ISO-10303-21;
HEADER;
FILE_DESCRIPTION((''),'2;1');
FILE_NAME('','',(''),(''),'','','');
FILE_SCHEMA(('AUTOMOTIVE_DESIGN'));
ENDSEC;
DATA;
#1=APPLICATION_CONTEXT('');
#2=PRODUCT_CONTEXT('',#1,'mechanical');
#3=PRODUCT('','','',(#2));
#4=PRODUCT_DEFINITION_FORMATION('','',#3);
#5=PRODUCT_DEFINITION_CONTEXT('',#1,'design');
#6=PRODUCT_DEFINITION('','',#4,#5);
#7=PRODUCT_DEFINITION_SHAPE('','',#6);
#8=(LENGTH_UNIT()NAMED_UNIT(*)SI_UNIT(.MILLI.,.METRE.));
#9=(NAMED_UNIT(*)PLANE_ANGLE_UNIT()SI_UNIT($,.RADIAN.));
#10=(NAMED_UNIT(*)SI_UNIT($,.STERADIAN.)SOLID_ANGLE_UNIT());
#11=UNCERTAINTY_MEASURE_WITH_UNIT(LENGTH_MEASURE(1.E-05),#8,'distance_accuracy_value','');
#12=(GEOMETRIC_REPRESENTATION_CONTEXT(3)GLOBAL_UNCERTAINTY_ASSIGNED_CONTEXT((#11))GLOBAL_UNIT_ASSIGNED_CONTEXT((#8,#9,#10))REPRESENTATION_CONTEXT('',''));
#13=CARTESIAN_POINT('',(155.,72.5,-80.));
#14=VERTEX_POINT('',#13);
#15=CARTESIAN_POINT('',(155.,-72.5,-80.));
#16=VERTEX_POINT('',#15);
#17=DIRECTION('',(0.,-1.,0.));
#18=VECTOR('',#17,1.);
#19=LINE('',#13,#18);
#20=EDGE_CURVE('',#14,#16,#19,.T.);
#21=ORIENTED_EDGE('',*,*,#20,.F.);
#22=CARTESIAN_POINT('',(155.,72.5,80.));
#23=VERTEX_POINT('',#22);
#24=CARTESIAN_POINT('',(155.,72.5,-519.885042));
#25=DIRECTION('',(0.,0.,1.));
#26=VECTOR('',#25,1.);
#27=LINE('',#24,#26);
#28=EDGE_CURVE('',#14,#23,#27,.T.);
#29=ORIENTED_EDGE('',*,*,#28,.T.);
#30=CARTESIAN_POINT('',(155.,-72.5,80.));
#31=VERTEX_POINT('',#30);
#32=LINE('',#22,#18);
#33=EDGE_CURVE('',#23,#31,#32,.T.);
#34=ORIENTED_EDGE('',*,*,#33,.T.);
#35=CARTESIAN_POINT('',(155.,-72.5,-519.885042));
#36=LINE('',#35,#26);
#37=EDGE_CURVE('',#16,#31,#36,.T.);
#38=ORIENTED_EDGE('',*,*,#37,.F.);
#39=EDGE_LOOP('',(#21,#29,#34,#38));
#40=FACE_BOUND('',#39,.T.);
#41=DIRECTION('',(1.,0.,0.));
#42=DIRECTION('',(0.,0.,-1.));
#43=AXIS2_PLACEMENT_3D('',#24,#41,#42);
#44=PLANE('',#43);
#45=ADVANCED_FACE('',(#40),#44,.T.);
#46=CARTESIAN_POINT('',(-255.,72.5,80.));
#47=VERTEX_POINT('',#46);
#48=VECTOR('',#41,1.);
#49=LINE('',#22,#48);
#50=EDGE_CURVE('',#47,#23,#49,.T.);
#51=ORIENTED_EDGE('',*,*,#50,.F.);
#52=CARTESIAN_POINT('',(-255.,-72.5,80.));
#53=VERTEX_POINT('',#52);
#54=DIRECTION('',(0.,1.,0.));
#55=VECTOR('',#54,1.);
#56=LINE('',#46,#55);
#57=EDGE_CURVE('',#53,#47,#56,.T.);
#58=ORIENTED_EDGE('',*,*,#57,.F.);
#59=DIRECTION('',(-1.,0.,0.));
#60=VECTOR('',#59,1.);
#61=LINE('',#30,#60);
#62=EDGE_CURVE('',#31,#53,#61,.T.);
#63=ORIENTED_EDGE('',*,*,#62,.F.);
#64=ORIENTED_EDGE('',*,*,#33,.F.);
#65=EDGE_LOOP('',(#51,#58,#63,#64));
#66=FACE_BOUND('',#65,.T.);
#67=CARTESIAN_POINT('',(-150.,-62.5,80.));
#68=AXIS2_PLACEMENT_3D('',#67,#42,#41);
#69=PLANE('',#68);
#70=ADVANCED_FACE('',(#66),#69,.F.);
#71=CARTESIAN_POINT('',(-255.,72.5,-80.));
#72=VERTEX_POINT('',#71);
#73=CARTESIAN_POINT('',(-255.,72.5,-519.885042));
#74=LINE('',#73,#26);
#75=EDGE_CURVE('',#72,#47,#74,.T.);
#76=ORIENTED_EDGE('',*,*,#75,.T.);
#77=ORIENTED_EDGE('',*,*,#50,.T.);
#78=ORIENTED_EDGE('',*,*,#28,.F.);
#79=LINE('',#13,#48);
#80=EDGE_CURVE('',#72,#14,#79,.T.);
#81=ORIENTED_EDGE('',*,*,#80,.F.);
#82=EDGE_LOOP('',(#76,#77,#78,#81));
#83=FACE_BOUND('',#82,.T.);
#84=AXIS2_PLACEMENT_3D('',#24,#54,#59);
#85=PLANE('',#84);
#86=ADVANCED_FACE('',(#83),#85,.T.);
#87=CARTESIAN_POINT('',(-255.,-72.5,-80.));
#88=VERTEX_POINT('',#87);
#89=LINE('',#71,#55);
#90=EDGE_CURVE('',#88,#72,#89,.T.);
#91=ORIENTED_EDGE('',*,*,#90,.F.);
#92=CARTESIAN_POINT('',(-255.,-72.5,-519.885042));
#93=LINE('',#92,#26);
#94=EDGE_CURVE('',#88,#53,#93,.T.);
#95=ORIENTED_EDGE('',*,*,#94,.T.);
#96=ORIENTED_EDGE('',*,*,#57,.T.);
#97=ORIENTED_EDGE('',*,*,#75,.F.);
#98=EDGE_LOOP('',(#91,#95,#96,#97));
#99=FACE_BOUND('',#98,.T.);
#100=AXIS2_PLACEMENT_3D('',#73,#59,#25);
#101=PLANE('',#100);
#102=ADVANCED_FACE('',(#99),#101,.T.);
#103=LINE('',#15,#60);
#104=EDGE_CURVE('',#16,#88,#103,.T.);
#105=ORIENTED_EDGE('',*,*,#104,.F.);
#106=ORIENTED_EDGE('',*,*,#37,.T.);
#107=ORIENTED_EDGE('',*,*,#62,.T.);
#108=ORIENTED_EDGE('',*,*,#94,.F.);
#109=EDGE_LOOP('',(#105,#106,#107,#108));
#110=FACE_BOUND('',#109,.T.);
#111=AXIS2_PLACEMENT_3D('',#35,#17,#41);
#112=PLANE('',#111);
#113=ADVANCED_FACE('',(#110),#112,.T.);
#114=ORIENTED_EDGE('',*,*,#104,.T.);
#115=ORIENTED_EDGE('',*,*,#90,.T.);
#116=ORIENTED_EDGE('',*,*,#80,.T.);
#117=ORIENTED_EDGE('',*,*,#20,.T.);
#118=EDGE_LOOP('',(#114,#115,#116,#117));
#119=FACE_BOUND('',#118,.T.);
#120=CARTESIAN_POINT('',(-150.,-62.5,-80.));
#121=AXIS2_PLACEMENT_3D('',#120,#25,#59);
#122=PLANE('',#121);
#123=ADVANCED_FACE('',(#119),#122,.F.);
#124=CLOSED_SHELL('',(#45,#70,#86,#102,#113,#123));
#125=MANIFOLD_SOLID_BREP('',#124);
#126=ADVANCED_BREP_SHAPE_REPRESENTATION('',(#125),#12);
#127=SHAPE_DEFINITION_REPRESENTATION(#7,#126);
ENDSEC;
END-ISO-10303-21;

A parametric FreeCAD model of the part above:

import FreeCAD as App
import Part
import Sketcher

V = App.Vector
Q = App.Units.Quantity

doc = App.newDocument("Part")
body = doc.addObject("PartDesign::Body", "Body")

# Sketch on XY plane
sketch1 = body.newObject("Sketcher::SketchObject", "Sketch")
sketch1.AttachmentSupport = (doc.getObject("XY_Plane"), [""])
sketch1.MapMode = "FlatFace"
sketch1.addGeometry(Part.LineSegment(V(-255, 72, 0), V(-255, -72, 0)), False)
sketch1.addGeometry(Part.LineSegment(V(-255, -72, 0), V(155, -72, 0)), False)
sketch1.addGeometry(Part.LineSegment(V(155, -72, 0), V(155, 72, 0)), False)
sketch1.addGeometry(Part.LineSegment(V(155, 72, 0), V(-255, 72, 0)), False)
sketch1.addConstraint(Sketcher.Constraint("Coincident", 0, 2, 1, 1))
sketch1.addConstraint(Sketcher.Constraint("Coincident", 1, 2, 2, 1))
sketch1.addConstraint(Sketcher.Constraint("Coincident", 2, 2, 3, 1))
sketch1.addConstraint(Sketcher.Constraint("Coincident", 3, 2, 0, 1))
sketch1.addConstraint(Sketcher.Constraint("Vertical", 0))
sketch1.addConstraint(Sketcher.Constraint("Horizontal", 1))
sketch1.addConstraint(Sketcher.Constraint("Vertical", 2))
sketch1.addConstraint(Sketcher.Constraint("Horizontal", 3))
sketch1.addConstraint(Sketcher.Constraint("DistanceX", 1, 1, 1, 2, Q("410 mm")))
sketch1.addConstraint(Sketcher.Constraint("DistanceY", 0, 2, 0, 1, Q("145 mm")))
sketch1.addConstraint(Sketcher.Constraint("DistanceX", 0, 2, -1, 1, Q("255 mm")))
sketch1.addConstraint(Sketcher.Constraint("DistanceY", 0, 2, -1, 1, Q("72.5 mm")))
pad1 = body.newObject("PartDesign::Pad", "Pad")
pad1.Profile = sketch1
pad1.Type = "TwoLengths"
pad1.Length = 80
pad1.Length2 = 80

doc.recompute()
